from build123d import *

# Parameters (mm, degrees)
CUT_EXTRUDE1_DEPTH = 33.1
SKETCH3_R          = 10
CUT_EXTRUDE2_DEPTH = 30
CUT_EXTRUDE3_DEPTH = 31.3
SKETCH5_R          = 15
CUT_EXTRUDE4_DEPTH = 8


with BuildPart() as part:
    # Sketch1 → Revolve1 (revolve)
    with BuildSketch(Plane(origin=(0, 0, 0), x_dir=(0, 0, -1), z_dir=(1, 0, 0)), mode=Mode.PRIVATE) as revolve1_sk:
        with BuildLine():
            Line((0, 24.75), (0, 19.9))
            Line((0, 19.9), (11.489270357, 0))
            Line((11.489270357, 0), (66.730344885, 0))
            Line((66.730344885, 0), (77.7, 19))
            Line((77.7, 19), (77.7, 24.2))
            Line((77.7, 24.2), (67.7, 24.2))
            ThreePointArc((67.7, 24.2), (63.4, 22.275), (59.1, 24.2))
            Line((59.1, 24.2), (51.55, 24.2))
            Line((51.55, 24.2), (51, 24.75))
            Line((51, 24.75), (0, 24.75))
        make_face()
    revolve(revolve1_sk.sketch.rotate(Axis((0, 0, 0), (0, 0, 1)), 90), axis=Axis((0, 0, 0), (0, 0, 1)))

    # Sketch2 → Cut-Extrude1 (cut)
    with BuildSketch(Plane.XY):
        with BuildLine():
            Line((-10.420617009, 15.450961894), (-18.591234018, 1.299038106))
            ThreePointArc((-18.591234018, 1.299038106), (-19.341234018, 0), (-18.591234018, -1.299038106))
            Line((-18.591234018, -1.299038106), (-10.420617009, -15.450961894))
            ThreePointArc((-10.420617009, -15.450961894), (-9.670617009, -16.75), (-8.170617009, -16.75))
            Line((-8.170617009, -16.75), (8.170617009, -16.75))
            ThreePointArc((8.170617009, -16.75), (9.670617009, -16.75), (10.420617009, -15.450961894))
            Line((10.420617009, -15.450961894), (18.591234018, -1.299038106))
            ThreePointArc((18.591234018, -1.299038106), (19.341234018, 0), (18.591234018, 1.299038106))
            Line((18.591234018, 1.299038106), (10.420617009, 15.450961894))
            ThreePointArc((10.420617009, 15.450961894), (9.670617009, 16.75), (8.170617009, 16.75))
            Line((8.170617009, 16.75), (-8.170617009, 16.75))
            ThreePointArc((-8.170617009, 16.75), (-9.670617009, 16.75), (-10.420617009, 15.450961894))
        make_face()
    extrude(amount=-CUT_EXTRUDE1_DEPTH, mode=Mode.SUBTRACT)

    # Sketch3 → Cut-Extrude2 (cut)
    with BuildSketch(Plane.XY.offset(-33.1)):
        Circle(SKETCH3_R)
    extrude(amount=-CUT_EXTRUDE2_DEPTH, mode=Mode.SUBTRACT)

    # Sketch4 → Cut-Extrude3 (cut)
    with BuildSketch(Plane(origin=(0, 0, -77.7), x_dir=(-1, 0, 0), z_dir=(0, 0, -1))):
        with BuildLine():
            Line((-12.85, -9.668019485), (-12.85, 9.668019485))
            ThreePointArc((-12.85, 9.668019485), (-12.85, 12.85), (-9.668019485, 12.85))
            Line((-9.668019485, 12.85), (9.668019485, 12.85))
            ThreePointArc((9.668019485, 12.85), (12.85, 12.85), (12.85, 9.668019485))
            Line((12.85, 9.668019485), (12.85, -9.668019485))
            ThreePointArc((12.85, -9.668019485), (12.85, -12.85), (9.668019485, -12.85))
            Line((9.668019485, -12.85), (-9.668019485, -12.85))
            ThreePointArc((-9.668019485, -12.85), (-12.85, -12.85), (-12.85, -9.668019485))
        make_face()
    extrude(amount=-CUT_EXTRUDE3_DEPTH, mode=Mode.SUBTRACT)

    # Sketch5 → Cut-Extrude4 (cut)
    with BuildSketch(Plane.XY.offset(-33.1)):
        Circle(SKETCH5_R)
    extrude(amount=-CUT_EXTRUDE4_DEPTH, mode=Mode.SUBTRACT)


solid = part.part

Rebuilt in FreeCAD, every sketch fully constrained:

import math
import FreeCAD as App
import Part
import Sketcher
Q = App.Units.Quantity

doc = App.newDocument("Part")
body = doc.addObject("PartDesign::Body", "Body")

sketch1 = doc.addObject("Sketcher::SketchObject", "Sketch")
body.addObject(sketch1)
sketch1.AttachmentSupport = (doc.YZ_Plane, [""])
sketch1.MapMode = "FlatFace"
sketch1.addGeometry(Part.LineSegment(App.Vector(24.8, 0, 0), App.Vector(19.9, 0, 0)), False)
sketch1.addGeometry(Part.LineSegment(App.Vector(19.9, 0, 0), App.Vector(0, -11.5, 0)), False)
sketch1.addGeometry(Part.LineSegment(App.Vector(0, -11.5, 0), App.Vector(0, -66.7, 0)), False)
sketch1.addGeometry(Part.LineSegment(App.Vector(0, -66.7, 0), App.Vector(19, -77.7, 0)), False)
sketch1.addGeometry(Part.LineSegment(App.Vector(19, -77.7, 0), App.Vector(24.2, -77.7, 0)), False)
sketch1.addGeometry(Part.LineSegment(App.Vector(24.2, -77.7, 0), App.Vector(24.2, -67.7, 0)), False)
sketch1.addGeometry(Part.ArcOfCircle(Part.Circle(App.Vector(28, -63.4, 0), App.Vector(0, 0, 1), 5.8), math.radians(132), math.radians(228)), False)
sketch1.addGeometry(Part.LineSegment(App.Vector(24.2, -59.1, 0), App.Vector(24.2, -51.5, 0)), False)
sketch1.addGeometry(Part.LineSegment(App.Vector(24.2, -51.5, 0), App.Vector(24.8, -51, 0)), False)
sketch1.addGeometry(Part.LineSegment(App.Vector(24.8, -51, 0), App.Vector(24.8, 0, 0)), False)
sketch1.addConstraint(Sketcher.Constraint("Coincident", 0, 2, 1, 1))
sketch1.addConstraint(Sketcher.Constraint("Coincident", 1, 2, 2, 1))
sketch1.addConstraint(Sketcher.Constraint("Coincident", 2, 2, 3, 1))
sketch1.addConstraint(Sketcher.Constraint("Coincident", 3, 2, 4, 1))
sketch1.addConstraint(Sketcher.Constraint("Coincident", 4, 2, 5, 1))
sketch1.addConstraint(Sketcher.Constraint("Coincident", 5, 2, 6, 2))
sketch1.addConstraint(Sketcher.Constraint("Coincident", 6, 1, 7, 1))
sketch1.addConstraint(Sketcher.Constraint("Coincident", 7, 2, 8, 1))
sketch1.addConstraint(Sketcher.Constraint("Coincident", 8, 2, 9, 1))
sketch1.addConstraint(Sketcher.Constraint("Coincident", 9, 2, 0, 1))
sketch1.addConstraint(Sketcher.Constraint("Horizontal", 0))
sketch1.addConstraint(Sketcher.Constraint("Vertical", 2))
sketch1.addConstraint(Sketcher.Constraint("Horizontal", 4))
sketch1.addConstraint(Sketcher.Constraint("Vertical", 5))
sketch1.addConstraint(Sketcher.Constraint("Vertical", 7))
sketch1.addConstraint(Sketcher.Constraint("Vertical", 9))
sketch1.addConstraint(Sketcher.Constraint("PointOnObject", 0, 2, -1))
sketch1.addConstraint(Sketcher.Constraint("PointOnObject", 1, 2, -2))
sketch1.addConstraint(Sketcher.Constraint("Vertical", 5, 2, 6, 1))
sketch1.addConstraint(Sketcher.Constraint("DistanceY", 5, 1, 5, 2, 10.0))
sketch1.addConstraint(Sketcher.Constraint("DistanceY", 9, 1, 9, 2, 51.0))
sketch1.addConstraint(Sketcher.Constraint("Angle", 1, Q("-150 deg")))
sketch1.addConstraint(Sketcher.Constraint("Angle", 3, Q("-30 deg")))
sketch1.addConstraint(Sketcher.Constraint("Angle", 8, Q("45 deg")))
sketch1.addConstraint(Sketcher.Constraint("DistanceX", 4, 1, 4, 2, 5.2))
sketch1.addConstraint(Sketcher.Constraint("DistanceX", -1, 1, 3, 2, 19.0))
sketch1.addConstraint(Sketcher.Constraint("DistanceX", 0, 2, 0, 1, 4.85))
sketch1.addConstraint(Sketcher.Constraint("DistanceY", 7, 1, 7, 2, 7.55))
sketch1.addConstraint(Sketcher.Constraint("DistanceY", 6, 3, -1, 1, 63.4))
sketch1.addConstraint(Sketcher.Constraint("DistanceX", -1, 1, 0, 2, 19.9))
sketch1.addConstraint(Sketcher.Constraint("Radius", 6, 5.765097))
revolution = doc.addObject("PartDesign::Revolution", "Revolution")
body.addObject(revolution)
revolution.Profile = sketch1
revolution.ReferenceAxis = (sketch1, ["V_Axis"])
revolution.Angle = 360

sketch2 = doc.addObject("Sketcher::SketchObject", "Sketch001")
body.addObject(sketch2)
sketch2.AttachmentSupport = (doc.XY_Plane, [""])
sketch2.MapMode = "FlatFace"
sketch2.addGeometry(Part.LineSegment(App.Vector(-10.4, 15.5, 0), App.Vector(-18.6, 1.3, 0)), False)
sketch2.addGeometry(Part.ArcOfCircle(Part.Circle(App.Vector(-17.8, 0, 0), App.Vector(0, 0, 1), 1.5), math.radians(120), math.radians(240)), False)
sketch2.addGeometry(Part.LineSegment(App.Vector(-18.6, -1.3, 0), App.Vector(-10.4, -15.5, 0)), False)
sketch2.addGeometry(Part.ArcOfCircle(Part.Circle(App.Vector(-8.9, -15.5, 0), App.Vector(0, 0, 1), 1.5), math.radians(180), math.radians(300)), False)
sketch2.addGeometry(Part.LineSegment(App.Vector(-8.2, -16.8, 0), App.Vector(8.2, -16.8, 0)), False)
sketch2.addGeometry(Part.ArcOfCircle(Part.Circle(App.Vector(8.9, -15.5, 0), App.Vector(0, 0, 1), 1.5), math.radians(-120), math.radians(0)), False)
sketch2.addGeometry(Part.LineSegment(App.Vector(10.4, -15.5, 0), App.Vector(18.6, -1.3, 0)), False)
sketch2.addGeometry(Part.ArcOfCircle(Part.Circle(App.Vector(17.8, 0, 0), App.Vector(0, 0, 1), 1.5), math.radians(-60), math.radians(60)), False)
sketch2.addGeometry(Part.LineSegment(App.Vector(18.6, 1.3, 0), App.Vector(10.4, 15.5, 0)), False)
sketch2.addGeometry(Part.ArcOfCircle(Part.Circle(App.Vector(8.9, 15.5, 0), App.Vector(0, 0, 1), 1.5), math.radians(0), math.radians(120)), False)
sketch2.addGeometry(Part.LineSegment(App.Vector(8.2, 16.8, 0), App.Vector(-8.2, 16.8, 0)), False)
sketch2.addGeometry(Part.ArcOfCircle(Part.Circle(App.Vector(-8.9, 15.5, 0), App.Vector(0, 0, 1), 1.5), math.radians(60), math.radians(180)), False)
sketch2.addConstraint(Sketcher.Constraint("Coincident", 0, 2, 1, 1))
sketch2.addConstraint(Sketcher.Constraint("Coincident", 1, 2, 2, 1))
sketch2.addConstraint(Sketcher.Constraint("Coincident", 2, 2, 3, 1))
sketch2.addConstraint(Sketcher.Constraint("Coincident", 3, 2, 4, 1))
sketch2.addConstraint(Sketcher.Constraint("Coincident", 4, 2, 5, 1))
sketch2.addConstraint(Sketcher.Constraint("Coincident", 5, 2, 6, 1))
sketch2.addConstraint(Sketcher.Constraint("Coincident", 6, 2, 7, 1))
sketch2.addConstraint(Sketcher.Constraint("Coincident", 7, 2, 8, 1))
sketch2.addConstraint(Sketcher.Constraint("Coincident", 8, 2, 9, 1))
sketch2.addConstraint(Sketcher.Constraint("Coincident", 9, 2, 10, 1))
sketch2.addConstraint(Sketcher.Constraint("Coincident", 10, 2, 11, 1))
sketch2.addConstraint(Sketcher.Constraint("Coincident", 11, 2, 0, 1))
sketch2.addConstraint(Sketcher.Constraint("Horizontal", 4))
sketch2.addConstraint(Sketcher.Constraint("Horizontal", 10))
sketch2.addConstraint(Sketcher.Constraint("Equal", 1, 3))
sketch2.addConstraint(Sketcher.Constraint("Equal", 3, 5))
sketch2.addConstraint(Sketcher.Constraint("Equal", 5, 7))
sketch2.addConstraint(Sketcher.Constraint("Equal", 7, 9))
sketch2.addConstraint(Sketcher.Constraint("Equal", 9, 11))
sketch2.addConstraint(Sketcher.Constraint("Symmetric", 1, 3, 7, 3, -1, 1))
sketch2.addConstraint(Sketcher.Constraint("Symmetric", 3, 3, 9, 3, -1, 1))
sketch2.addConstraint(Sketcher.Constraint("Symmetric", 5, 3, 11, 3, -1, 1))
sketch2.addConstraint(Sketcher.Constraint("Symmetric", 3, 3, 5, 3, -2))
sketch2.addConstraint(Sketcher.Constraint("Symmetric", 1, 2, 6, 2, -2))
sketch2.addConstraint(Sketcher.Constraint("Parallel", 0, 6))
sketch2.addConstraint(Sketcher.Constraint("Parallel", 2, 8))
sketch2.addConstraint(Sketcher.Constraint("Horizontal", 5, 3, 2, 2))
sketch2.addConstraint(Sketcher.Constraint("Horizontal", 2, 2, 5, 2))
sketch2.addConstraint(Sketcher.Constraint("Horizontal", 0, 2, 7, 2))
sketch2.addConstraint(Sketcher.Constraint("Horizontal", 11, 3, 8, 2))
sketch2.addConstraint(Sketcher.Constraint("Vertical", 4, 2, 9, 2))
sketch2.addConstraint(Sketcher.Constraint("Radius", 1, 1.5))
sketch2.addConstraint(Sketcher.Constraint("Angle", 0, Q("-120 deg")))
sketch2.addConstraint(Sketcher.Constraint("DistanceY", 3, 2, -1, 1, 16.75))
sketch2.addConstraint(Sketcher.Constraint("DistanceX", 0, 2, 1, 3, 0.75))
sketch2.addConstraint(Sketcher.Constraint("DistanceY", 3, 3, 0, 2, 16.75))
sketch2.addConstraint(Sketcher.Constraint("DistanceX", 4, 1, 4, 2, 16.341234))
pocket1 = doc.addObject("PartDesign::Pocket", "Pocket")
body.addObject(pocket1)
pocket1.Profile = sketch2
pocket1.Length = 33.1

sketch3 = doc.addObject("Sketcher::SketchObject", "Sketch002")
body.addObject(sketch3)
sketch3.AttachmentSupport = (doc.XY_Plane, [""])
sketch3.MapMode = "FlatFace"
sketch3.AttachmentOffset = App.Placement(App.Vector(0, 0, -33.1), App.Rotation())
sketch3.addGeometry(Part.Circle(App.Vector(0, 0, 0), App.Vector(0, 0, 1), 10), False)
sketch3.addConstraint(Sketcher.Constraint("Coincident", 0, 3, -1, 1))
sketch3.addConstraint(Sketcher.Constraint("Diameter", 0, 20.0))
pocket2 = doc.addObject("PartDesign::Pocket", "Pocket001")
body.addObject(pocket2)
pocket2.Profile = sketch3
pocket2.Length = 30

sketch4 = doc.addObject("Sketcher::SketchObject", "Sketch003")
body.addObject(sketch4)
sketch4.AttachmentSupport = (doc.XY_Plane, [""])
sketch4.MapMode = "FlatFace"
sketch4.AttachmentOffset = App.Placement(App.Vector(0, 0, -77.7), App.Rotation())
sketch4.addGeometry(Part.LineSegment(App.Vector(12.8, 9.7, 0), App.Vector(12.8, -9.7, 0)), False)
sketch4.addGeometry(Part.ArcOfCircle(Part.Circle(App.Vector(11.3, -11.3, 0), App.Vector(0, 0, 1), 2.2), math.radians(-135), math.radians(45)), False)
sketch4.addGeometry(Part.LineSegment(App.Vector(9.7, -12.8, 0), App.Vector(-9.7, -12.8, 0)), False)
sketch4.addGeometry(Part.ArcOfCircle(Part.Circle(App.Vector(-11.3, -11.3, 0), App.Vector(0, 0, 1), 2.2), math.radians(135), math.radians(315)), False)
sketch4.addGeometry(Part.LineSegment(App.Vector(-12.8, -9.7, 0), App.Vector(-12.8, 9.7, 0)), False)
sketch4.addGeometry(Part.ArcOfCircle(Part.Circle(App.Vector(-11.3, 11.3, 0), App.Vector(0, 0, 1), 2.2), math.radians(45), math.radians(225)), False)
sketch4.addGeometry(Part.LineSegment(App.Vector(-9.7, 12.8, 0), App.Vector(9.7, 12.8, 0)), False)
sketch4.addGeometry(Part.ArcOfCircle(Part.Circle(App.Vector(11.3, 11.3, 0), App.Vector(0, 0, 1), 2.2), math.radians(-45), math.radians(135)), False)
sketch4.addConstraint(Sketcher.Constraint("Coincident", 0, 2, 1, 2))
sketch4.addConstraint(Sketcher.Constraint("Coincident", 1, 1, 2, 1))
sketch4.addConstraint(Sketcher.Constraint("Coincident", 2, 2, 3, 2))
sketch4.addConstraint(Sketcher.Constraint("Coincident", 3, 1, 4, 1))
sketch4.addConstraint(Sketcher.Constraint("Coincident", 4, 2, 5, 2))
sketch4.addConstraint(Sketcher.Constraint("Coincident", 5, 1, 6, 1))
sketch4.addConstraint(Sketcher.Constraint("Coincident", 6, 2, 7, 2))
sketch4.addConstraint(Sketcher.Constraint("Coincident", 7, 1, 0, 1))
sketch4.addConstraint(Sketcher.Constraint("Vertical", 0))
sketch4.addConstraint(Sketcher.Constraint("Horizontal", 2))
sketch4.addConstraint(Sketcher.Constraint("Vertical", 4))
sketch4.addConstraint(Sketcher.Constraint("Horizontal", 6))
sketch4.addConstraint(Sketcher.Constraint("Equal", 1, 3))
sketch4.addConstraint(Sketcher.Constraint("Equal", 3, 5))
sketch4.addConstraint(Sketcher.Constraint("Equal", 5, 7))
sketch4.addConstraint(Sketcher.Constraint("Symmetric", 1, 3, 5, 3, -1, 1))
sketch4.addConstraint(Sketcher.Constraint("Symmetric", 3, 3, 7, 3, -1, 1))
sketch4.addConstraint(Sketcher.Constraint("Symmetric", 1, 3, 3, 3, -2))
sketch4.addConstraint(Sketcher.Constraint("Horizontal", 0, 2, 3, 1))
sketch4.addConstraint(Sketcher.Constraint("Vertical", 2, 2, 5, 1))
sketch4.addConstraint(Sketcher.Constraint("Equal", 6, 0))
sketch4.addConstraint(Sketcher.Constraint("Radius", 1, 2.25))
sketch4.addConstraint(Sketcher.Constraint("DistanceX", -1, 1, 0, 2, 12.85))
sketch4.addConstraint(Sketcher.Constraint("DistanceY", 1, 1, -1, 1, 12.85))
sketch4.addConstraint(Sketcher.Constraint("DistanceX", -1, 1, 1, 3, 11.25901))
pocket3 = doc.addObject("PartDesign::Pocket", "Pocket002")
body.addObject(pocket3)
pocket3.Profile = sketch4
pocket3.Length = 31.3
pocket3.Reversed = True

sketch5 = doc.addObject("Sketcher::SketchObject", "Sketch004")
body.addObject(sketch5)
sketch5.AttachmentSupport = (doc.XY_Plane, [""])
sketch5.MapMode = "FlatFace"
sketch5.AttachmentOffset = App.Placement(App.Vector(0, 0, -33.1), App.Rotation())
sketch5.addGeometry(Part.Circle(App.Vector(0, 0, 0), App.Vector(0, 0, 1), 15), False)
sketch5.addConstraint(Sketcher.Constraint("Coincident", 0, 3, -1, 1))
sketch5.addConstraint(Sketcher.Constraint("Diameter", 0, 30.0))
pocket4 = doc.addObject("PartDesign::Pocket", "Pocket003")
body.addObject(pocket4)
pocket4.Profile = sketch5
pocket4.Length = 8

doc.recompute()
